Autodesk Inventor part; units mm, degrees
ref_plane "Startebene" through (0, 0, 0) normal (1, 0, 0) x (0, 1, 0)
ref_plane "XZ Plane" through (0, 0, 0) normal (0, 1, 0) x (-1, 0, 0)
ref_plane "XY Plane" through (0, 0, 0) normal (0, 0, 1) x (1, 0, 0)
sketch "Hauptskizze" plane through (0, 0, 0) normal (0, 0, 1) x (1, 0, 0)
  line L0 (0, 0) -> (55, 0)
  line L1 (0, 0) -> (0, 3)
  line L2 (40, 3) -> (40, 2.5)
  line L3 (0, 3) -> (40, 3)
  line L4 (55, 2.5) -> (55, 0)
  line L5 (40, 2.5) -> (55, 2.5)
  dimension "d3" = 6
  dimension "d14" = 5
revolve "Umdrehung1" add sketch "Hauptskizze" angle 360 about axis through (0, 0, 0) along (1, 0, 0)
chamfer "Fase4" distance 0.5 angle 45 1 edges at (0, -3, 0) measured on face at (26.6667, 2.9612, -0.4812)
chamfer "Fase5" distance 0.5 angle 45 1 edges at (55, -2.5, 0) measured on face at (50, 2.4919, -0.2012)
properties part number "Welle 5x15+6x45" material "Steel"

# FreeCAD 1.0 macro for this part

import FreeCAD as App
import Part
import Sketcher
Q = App.Units.Quantity


def edges_at(feature, points):
    """Names of the edges that pass closest to the given points."""
    edges = feature.Shape.Edges
    near = lambda p: min(range(len(edges)), key=lambda i: edges[i].distToShape(Part.Vertex(*p))[0])
    return sorted({f"Edge{near(p) + 1}" for p in points})


def add_polygon(sketch, points):
    """Adds a closed chain of lines whose ends are joined by coincident constraints."""
    first, n = sketch.GeometryCount, len(points)
    for a, b in zip(points, points[1:] + points[:1]):
        sketch.addGeometry(Part.LineSegment(App.Vector(*a, 0), App.Vector(*b, 0)), False)
    for i in range(n):
        sketch.addConstraint(Sketcher.Constraint("Coincident", first + i, 2, first + (i + 1) % n, 1))

doc = App.newDocument("Part")
params = doc.addObject("Spreadsheet::Sheet", "Params")
for row, (alias, value) in enumerate([
    ("sketch1_width", "55 mm"),
    ("sketch1_width2", "15 mm"),
    ("sketch1_height", "3 mm"),
    ("sketch1_height2", "2.5 mm"),
    ("revolution_angle", "360 deg"),
    ("chamfer_size", "0.5 mm"),
    ("chamfer2_size", "0.5 mm"),
], start=1):
    params.set(f"A{row}", alias)
    params.set(f"B{row}", "=" + value)
    params.setAlias(f"B{row}", alias)

body = doc.addObject("PartDesign::Body", "Body")

# Sketch on XY plane
sketch1 = doc.addObject("Sketcher::SketchObject", "Sketch")
body.addObject(sketch1)
sketch1.AttachmentSupport = (doc.XY_Plane, [""])
sketch1.MapMode = "FlatFace"
add_polygon(sketch1, [(0, 3), (0, 0), (55, 0), (55, 2.5), (40, 2.5), (40, 3)])  # lines 0-5
sketch1.addConstraint([
    Sketcher.Constraint("Vertical", 0),
    Sketcher.Constraint("Horizontal", 1),
    Sketcher.Constraint("Vertical", 2),
    Sketcher.Constraint("Horizontal", 3),
    Sketcher.Constraint("Vertical", 4),
    Sketcher.Constraint("Horizontal", 5),
    Sketcher.Constraint("Coincident", 0, 2, -1, 1),
    Sketcher.Constraint("DistanceX", 1, 1, 1, 2, Q("55 mm")),
    Sketcher.Constraint("DistanceX", 3, 2, 3, 1, Q("15 mm")),
    Sketcher.Constraint("DistanceY", 0, 2, 0, 1, Q("3 mm")),
    Sketcher.Constraint("DistanceY", 2, 1, 2, 2, Q("2.5 mm")),
])
sketch1.setExpression("Constraints[13]", "Params.sketch1_width")
sketch1.setExpression("Constraints[14]", "Params.sketch1_width2")
sketch1.setExpression("Constraints[15]", "Params.sketch1_height")
sketch1.setExpression("Constraints[16]", "Params.sketch1_height2")
revolution = doc.addObject("PartDesign::Revolution", "Revolution")
body.addObject(revolution)
revolution.Profile = sketch1
revolution.ReferenceAxis = (sketch1, ["H_Axis"])
revolution.setExpression("Angle", "Params.revolution_angle")
doc.recompute()

chamfer = doc.addObject("PartDesign::Chamfer", "Chamfer")
body.addObject(chamfer)
chamfer.Base = (revolution, edges_at(revolution, [(0, -3, 0)]))
chamfer.setExpression("Size", "Params.chamfer_size")
doc.recompute()

chamfer2 = doc.addObject("PartDesign::Chamfer", "Chamfer001")
body.addObject(chamfer2)
chamfer2.Base = (chamfer, edges_at(chamfer, [(55, -2.5, 0)]))
chamfer2.setExpression("Size", "Params.chamfer2_size")

doc.recompute()
